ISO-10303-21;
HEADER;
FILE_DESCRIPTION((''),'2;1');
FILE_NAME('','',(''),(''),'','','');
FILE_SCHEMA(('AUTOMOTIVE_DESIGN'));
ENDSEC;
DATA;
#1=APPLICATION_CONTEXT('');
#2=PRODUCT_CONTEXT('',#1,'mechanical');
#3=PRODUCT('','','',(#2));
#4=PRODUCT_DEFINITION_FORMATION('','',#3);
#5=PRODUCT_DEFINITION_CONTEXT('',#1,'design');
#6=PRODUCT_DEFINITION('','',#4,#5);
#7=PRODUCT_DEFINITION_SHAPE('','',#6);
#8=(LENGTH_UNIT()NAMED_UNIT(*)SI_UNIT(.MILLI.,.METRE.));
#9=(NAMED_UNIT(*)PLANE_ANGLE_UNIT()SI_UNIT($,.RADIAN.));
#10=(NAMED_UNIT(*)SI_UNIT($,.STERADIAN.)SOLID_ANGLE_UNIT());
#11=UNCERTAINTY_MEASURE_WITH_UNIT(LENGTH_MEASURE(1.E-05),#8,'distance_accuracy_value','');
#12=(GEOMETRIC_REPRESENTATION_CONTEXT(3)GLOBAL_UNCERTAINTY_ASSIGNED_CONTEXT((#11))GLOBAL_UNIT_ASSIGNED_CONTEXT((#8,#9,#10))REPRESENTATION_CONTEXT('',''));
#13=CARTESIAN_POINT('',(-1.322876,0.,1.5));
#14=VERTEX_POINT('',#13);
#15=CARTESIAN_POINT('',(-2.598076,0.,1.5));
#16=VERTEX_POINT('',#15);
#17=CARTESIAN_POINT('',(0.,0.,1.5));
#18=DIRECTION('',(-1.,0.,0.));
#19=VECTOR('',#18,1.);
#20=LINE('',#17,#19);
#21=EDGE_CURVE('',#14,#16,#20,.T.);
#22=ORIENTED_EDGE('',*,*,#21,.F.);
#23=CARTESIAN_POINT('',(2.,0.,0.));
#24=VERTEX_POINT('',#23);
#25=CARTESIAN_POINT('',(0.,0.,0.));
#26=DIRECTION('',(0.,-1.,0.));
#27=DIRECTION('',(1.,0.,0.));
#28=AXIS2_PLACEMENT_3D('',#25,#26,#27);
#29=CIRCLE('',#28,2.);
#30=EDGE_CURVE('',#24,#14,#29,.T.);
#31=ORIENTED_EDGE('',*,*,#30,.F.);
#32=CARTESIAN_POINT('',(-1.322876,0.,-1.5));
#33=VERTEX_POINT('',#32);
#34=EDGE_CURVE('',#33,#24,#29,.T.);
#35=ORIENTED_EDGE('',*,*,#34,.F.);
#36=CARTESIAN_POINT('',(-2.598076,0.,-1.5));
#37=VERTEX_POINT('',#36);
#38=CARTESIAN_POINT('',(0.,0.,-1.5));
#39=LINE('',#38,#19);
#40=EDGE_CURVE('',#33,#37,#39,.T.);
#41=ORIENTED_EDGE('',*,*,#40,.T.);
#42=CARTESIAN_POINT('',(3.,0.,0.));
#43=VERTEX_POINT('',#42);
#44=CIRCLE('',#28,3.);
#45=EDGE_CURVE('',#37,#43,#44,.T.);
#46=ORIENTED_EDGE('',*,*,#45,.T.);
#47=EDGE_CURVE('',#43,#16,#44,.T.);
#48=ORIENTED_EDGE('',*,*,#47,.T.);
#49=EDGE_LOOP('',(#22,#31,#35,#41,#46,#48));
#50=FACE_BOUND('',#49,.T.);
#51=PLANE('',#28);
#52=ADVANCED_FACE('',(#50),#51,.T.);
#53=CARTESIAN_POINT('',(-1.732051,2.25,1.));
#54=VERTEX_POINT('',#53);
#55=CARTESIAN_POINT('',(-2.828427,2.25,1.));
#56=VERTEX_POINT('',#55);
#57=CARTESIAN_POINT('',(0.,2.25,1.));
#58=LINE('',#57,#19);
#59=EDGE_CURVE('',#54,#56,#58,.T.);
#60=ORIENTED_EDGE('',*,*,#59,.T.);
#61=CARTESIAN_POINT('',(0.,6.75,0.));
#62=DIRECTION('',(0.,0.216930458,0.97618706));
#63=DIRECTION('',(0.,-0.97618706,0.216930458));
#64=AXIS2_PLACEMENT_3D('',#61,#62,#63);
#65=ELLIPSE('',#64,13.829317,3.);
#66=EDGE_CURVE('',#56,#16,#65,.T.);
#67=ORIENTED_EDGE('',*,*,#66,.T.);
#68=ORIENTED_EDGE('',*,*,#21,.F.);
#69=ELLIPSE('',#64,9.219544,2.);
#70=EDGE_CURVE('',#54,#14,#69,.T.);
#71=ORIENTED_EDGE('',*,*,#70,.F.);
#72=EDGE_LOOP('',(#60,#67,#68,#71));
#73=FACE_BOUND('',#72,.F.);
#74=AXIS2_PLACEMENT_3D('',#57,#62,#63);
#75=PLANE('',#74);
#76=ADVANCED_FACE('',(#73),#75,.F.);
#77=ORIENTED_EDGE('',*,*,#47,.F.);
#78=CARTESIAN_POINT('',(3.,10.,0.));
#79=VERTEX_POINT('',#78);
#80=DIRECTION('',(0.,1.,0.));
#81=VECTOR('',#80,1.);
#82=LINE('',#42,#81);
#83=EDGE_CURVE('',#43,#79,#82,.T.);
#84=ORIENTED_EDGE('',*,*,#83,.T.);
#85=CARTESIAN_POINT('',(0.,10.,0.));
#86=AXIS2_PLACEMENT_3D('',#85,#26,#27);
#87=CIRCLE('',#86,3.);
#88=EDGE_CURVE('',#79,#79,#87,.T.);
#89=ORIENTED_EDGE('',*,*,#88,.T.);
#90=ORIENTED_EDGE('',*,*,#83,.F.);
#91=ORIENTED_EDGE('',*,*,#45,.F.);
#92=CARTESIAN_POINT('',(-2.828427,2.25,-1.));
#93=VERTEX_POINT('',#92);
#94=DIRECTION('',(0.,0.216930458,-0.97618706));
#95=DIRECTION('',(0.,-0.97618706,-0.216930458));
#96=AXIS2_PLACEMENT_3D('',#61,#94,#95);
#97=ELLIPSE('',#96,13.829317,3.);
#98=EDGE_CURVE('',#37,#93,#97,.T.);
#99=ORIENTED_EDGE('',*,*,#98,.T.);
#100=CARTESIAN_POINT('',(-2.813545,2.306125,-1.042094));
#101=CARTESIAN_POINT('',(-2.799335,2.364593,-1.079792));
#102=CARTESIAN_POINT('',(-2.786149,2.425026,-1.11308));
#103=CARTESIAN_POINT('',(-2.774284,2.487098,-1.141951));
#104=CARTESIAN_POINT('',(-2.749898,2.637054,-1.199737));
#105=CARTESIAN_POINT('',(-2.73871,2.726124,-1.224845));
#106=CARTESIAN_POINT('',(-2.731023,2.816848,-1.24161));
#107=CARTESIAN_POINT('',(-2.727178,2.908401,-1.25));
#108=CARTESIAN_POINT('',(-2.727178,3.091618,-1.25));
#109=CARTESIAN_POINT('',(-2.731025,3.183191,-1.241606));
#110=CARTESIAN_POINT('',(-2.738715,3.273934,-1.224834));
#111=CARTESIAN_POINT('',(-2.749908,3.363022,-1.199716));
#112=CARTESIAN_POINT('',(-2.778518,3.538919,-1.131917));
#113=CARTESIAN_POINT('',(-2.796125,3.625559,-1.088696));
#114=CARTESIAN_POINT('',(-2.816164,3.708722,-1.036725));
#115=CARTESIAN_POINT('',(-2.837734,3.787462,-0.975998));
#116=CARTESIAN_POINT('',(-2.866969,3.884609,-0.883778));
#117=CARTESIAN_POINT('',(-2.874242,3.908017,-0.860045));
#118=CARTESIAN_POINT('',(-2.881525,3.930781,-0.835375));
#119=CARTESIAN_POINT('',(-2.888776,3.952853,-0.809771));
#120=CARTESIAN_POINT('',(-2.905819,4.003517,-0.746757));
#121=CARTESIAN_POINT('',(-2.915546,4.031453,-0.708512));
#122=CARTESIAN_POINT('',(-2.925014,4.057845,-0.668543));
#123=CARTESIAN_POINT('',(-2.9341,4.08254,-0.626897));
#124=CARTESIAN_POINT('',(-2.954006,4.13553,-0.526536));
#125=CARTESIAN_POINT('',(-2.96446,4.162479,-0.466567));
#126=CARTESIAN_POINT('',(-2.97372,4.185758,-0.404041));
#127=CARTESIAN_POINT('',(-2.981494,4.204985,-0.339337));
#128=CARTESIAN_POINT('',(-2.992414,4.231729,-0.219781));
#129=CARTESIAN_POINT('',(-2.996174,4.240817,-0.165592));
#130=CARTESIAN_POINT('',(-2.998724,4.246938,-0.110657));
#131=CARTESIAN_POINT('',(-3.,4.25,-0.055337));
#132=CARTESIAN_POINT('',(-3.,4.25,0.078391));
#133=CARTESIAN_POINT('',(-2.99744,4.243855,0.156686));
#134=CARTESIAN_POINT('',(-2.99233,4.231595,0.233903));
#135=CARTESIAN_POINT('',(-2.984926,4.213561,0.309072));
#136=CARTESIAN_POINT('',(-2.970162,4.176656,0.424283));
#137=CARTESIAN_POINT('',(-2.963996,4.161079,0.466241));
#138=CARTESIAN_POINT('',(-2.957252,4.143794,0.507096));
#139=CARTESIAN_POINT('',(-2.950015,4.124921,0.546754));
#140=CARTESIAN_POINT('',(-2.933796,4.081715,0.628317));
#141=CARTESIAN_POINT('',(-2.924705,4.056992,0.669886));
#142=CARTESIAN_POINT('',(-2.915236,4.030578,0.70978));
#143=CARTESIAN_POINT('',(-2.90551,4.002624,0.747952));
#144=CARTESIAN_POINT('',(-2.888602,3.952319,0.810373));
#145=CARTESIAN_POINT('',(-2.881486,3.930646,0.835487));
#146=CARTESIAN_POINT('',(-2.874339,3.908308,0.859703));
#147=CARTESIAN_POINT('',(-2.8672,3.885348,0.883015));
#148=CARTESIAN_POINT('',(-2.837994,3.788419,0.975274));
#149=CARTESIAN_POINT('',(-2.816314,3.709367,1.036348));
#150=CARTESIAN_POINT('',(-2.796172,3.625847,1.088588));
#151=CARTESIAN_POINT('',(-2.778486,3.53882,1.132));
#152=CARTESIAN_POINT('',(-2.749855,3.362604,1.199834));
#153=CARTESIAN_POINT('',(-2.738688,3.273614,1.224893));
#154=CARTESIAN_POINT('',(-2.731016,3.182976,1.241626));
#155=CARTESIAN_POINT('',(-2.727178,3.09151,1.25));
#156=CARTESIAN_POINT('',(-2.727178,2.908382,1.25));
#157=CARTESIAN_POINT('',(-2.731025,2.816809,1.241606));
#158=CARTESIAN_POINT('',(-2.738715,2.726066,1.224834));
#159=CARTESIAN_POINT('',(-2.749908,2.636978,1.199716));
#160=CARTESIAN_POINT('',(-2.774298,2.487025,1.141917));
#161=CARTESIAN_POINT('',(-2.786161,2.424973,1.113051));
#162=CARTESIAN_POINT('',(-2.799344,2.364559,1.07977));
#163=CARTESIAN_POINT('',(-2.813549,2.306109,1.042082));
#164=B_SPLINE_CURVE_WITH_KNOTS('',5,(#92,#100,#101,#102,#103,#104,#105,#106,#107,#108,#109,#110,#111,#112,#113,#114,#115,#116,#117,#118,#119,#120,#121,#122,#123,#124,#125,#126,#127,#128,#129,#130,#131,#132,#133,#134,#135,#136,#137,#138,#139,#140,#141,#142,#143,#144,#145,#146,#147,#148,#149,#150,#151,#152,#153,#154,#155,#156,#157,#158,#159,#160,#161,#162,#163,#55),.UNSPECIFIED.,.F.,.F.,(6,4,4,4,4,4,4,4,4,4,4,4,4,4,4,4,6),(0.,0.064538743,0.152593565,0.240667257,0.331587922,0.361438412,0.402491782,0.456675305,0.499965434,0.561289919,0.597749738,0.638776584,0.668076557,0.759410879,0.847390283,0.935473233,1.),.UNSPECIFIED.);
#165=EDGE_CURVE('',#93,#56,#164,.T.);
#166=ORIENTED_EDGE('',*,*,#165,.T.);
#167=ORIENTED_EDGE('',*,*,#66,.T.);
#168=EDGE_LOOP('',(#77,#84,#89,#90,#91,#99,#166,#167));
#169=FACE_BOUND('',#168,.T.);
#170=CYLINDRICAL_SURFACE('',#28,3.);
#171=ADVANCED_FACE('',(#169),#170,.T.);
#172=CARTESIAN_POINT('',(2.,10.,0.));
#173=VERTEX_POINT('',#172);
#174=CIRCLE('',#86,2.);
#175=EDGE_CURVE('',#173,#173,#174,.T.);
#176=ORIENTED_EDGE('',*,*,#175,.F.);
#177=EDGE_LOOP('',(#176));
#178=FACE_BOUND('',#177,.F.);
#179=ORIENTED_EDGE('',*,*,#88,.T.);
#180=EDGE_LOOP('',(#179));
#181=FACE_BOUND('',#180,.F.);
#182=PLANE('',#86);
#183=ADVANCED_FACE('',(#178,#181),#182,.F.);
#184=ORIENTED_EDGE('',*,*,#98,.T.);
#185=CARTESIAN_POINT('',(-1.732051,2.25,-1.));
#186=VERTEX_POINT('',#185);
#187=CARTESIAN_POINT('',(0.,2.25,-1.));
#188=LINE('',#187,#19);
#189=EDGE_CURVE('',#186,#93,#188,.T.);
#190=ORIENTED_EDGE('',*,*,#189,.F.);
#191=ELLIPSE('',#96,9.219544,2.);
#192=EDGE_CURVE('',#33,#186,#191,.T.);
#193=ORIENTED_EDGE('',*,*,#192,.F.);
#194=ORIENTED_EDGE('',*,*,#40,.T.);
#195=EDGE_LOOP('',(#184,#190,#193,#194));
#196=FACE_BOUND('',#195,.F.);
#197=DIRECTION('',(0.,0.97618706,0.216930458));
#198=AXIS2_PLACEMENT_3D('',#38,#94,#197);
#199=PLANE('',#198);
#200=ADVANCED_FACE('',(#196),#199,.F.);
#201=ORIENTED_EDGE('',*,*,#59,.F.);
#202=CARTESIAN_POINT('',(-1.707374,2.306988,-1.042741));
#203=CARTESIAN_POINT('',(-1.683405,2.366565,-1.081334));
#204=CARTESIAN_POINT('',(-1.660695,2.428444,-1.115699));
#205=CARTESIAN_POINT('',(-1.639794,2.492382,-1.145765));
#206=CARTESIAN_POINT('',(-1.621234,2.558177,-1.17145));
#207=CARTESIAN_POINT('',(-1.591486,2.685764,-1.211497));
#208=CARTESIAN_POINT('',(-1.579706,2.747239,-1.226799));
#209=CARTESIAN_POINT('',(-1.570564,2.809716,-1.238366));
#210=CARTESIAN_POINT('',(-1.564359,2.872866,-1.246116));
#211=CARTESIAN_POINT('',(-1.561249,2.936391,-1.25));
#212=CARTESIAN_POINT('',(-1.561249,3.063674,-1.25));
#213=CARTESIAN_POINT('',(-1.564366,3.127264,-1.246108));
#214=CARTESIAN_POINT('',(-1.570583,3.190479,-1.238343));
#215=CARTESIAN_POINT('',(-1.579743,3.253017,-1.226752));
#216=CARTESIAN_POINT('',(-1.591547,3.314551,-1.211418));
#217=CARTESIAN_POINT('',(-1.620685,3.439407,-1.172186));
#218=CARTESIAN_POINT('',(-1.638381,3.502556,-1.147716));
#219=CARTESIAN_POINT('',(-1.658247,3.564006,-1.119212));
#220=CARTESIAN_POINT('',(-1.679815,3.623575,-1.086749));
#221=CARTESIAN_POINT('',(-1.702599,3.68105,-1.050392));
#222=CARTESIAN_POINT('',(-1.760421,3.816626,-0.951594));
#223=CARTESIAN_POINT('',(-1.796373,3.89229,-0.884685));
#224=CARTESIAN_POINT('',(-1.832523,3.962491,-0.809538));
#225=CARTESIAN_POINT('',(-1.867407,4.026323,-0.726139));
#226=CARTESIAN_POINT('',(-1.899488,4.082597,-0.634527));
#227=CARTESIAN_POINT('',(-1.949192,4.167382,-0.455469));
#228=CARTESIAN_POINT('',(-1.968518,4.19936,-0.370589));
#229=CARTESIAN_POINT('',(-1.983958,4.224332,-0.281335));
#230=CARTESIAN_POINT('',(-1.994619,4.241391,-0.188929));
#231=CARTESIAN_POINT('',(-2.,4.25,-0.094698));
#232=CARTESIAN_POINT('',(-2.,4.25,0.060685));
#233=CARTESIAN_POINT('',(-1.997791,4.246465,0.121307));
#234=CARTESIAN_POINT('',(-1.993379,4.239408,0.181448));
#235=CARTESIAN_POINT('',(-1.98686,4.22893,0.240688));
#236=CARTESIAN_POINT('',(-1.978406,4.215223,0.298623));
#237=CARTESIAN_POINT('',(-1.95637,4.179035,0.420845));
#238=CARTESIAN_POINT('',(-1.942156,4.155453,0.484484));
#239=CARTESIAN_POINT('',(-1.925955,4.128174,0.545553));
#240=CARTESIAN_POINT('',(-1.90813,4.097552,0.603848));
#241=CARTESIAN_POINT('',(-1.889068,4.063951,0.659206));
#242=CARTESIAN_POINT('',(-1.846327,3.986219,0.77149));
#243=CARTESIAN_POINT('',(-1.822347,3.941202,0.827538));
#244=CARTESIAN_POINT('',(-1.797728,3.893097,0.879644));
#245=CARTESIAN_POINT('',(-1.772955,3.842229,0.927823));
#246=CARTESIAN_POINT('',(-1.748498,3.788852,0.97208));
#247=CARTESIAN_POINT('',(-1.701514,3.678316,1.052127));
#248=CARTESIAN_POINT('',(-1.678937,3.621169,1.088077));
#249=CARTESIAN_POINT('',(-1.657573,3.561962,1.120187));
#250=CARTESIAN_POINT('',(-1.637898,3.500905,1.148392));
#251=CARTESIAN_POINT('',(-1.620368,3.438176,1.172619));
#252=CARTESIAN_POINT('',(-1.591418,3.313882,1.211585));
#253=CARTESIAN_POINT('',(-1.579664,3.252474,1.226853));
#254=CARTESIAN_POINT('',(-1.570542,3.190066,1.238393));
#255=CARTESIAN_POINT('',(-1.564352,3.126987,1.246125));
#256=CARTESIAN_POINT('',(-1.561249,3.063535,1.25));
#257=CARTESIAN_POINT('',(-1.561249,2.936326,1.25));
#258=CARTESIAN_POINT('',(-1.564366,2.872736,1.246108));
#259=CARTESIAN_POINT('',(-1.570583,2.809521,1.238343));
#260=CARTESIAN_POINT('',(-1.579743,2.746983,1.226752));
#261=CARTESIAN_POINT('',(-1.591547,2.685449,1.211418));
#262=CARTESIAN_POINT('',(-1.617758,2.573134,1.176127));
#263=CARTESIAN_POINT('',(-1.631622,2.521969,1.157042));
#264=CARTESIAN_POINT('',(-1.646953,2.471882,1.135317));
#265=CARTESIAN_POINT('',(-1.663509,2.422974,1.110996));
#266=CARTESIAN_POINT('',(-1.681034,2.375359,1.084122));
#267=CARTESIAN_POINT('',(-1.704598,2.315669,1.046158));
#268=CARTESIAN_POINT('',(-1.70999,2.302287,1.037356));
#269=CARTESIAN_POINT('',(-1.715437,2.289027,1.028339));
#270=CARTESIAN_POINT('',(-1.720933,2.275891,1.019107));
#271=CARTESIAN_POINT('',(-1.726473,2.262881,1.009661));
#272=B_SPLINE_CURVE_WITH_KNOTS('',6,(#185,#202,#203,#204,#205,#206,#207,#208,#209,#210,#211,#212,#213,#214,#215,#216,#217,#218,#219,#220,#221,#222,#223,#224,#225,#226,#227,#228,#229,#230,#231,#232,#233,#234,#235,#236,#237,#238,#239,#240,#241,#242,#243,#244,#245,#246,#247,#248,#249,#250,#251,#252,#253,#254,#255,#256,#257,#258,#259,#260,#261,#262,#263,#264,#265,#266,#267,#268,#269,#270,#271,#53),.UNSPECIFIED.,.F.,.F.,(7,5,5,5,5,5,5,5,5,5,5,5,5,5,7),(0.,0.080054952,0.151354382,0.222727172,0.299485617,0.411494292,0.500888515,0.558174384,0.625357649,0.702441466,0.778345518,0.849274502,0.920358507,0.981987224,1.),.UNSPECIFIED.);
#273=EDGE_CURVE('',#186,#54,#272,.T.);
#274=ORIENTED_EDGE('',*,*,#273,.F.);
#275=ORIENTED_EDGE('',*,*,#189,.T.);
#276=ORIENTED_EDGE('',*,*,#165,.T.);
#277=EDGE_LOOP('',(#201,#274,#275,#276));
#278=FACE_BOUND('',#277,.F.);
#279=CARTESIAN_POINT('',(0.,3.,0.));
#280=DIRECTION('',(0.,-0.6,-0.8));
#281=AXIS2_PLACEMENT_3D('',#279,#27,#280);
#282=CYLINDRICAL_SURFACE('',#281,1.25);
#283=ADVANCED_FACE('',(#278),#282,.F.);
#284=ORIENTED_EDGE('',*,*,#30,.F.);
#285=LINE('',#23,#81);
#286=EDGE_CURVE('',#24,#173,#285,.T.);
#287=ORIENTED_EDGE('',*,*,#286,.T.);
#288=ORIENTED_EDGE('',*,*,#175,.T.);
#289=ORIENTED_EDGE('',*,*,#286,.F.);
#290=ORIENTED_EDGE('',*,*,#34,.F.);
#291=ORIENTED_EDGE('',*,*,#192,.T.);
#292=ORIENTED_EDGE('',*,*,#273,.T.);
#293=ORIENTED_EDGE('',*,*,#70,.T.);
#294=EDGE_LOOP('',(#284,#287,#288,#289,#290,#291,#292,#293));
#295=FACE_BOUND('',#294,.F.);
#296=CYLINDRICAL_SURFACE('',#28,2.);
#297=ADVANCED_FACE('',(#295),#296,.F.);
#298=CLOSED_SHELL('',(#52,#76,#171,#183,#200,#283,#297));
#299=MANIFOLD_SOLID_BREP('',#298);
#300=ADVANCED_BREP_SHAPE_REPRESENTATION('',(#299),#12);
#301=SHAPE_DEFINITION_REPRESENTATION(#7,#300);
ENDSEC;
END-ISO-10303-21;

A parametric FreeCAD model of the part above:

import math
import FreeCAD as App
import Part
import Sketcher

V = App.Vector
Q = App.Units.Quantity

doc = App.newDocument("Part")
body = doc.addObject("PartDesign::Body", "Body")

# Sketch on XZ plane
sketch1 = doc.addObject("Sketcher::SketchObject", "Sketch")
body.addObject(sketch1)
sketch1.AttachmentSupport = (doc.XZ_Plane, [""])
sketch1.MapMode = "FlatFace"
sketch1.addGeometry(Part.Circle(V(0, 0, 0), V(0, 0, 1), 3), False)
sketch1.addConstraint(Sketcher.Constraint("Coincident", 0, 3, -1, 1))
sketch1.addConstraint(Sketcher.Constraint("Diameter", 0, Q("6 mm")))
pad1 = doc.addObject("PartDesign::Pad", "Pad")
body.addObject(pad1)
pad1.Profile = sketch1
pad1.Length = 10
pad1.Reversed = True

# Sketch on YZ plane
sketch2 = doc.addObject("Sketcher::SketchObject", "Sketch001")
body.addObject(sketch2)
sketch2.AttachmentSupport = (doc.YZ_Plane, [""])
sketch2.MapMode = "FlatFace"
sketch2.addGeometry(Part.LineSegment(V(0, 1.5, 0), V(0, -1.5, 0)), False)
sketch2.addGeometry(Part.LineSegment(V(0, -1.5, 0), V(2.2, -1, 0)), False)
sketch2.addGeometry(Part.ArcOfCircle(Part.Circle(V(3, 0, 0), V(0, 0, 1), 1.2), math.radians(-127), math.radians(127)), False)
sketch2.addGeometry(Part.LineSegment(V(2.2, 1, 0), V(0, 1.5, 0)), False)
sketch2.addConstraint(Sketcher.Constraint("Coincident", 0, 2, 1, 1))
sketch2.addConstraint(Sketcher.Constraint("Coincident", 1, 2, 2, 1))
sketch2.addConstraint(Sketcher.Constraint("Coincident", 2, 2, 3, 1))
sketch2.addConstraint(Sketcher.Constraint("Coincident", 3, 2, 0, 1))
sketch2.addConstraint(Sketcher.Constraint("Vertical", 0))
sketch2.addConstraint(Sketcher.Constraint("Symmetric", 0, 2, 3, 2, -1, 1))
sketch2.addConstraint(Sketcher.Constraint("Symmetric", 1, 2, 2, 2, -1))
sketch2.addConstraint(Sketcher.Constraint("DistanceY", 0, 2, 0, 1, Q("3 mm")))
sketch2.addConstraint(Sketcher.Constraint("Radius", 2, Q("1.25 mm")))
sketch2.addConstraint(Sketcher.Constraint("DistanceX", -1, 1, 2, 3, Q("3 mm")))
sketch2.addConstraint(Sketcher.Constraint("DistanceY", 1, 2, -1, 1, Q("1 mm")))
pocket1 = doc.addObject("PartDesign::Pocket", "Pocket")
body.addObject(pocket1)
pocket1.Profile = sketch2
pocket1.Length = 25

# Sketch on XZ plane
sketch3 = doc.addObject("Sketcher::SketchObject", "Sketch002")
body.addObject(sketch3)
sketch3.AttachmentSupport = (doc.XZ_Plane, [""])
sketch3.MapMode = "FlatFace"
sketch3.addGeometry(Part.Circle(V(0, 0, 0), V(0, 0, 1), 2), False)
sketch3.addConstraint(Sketcher.Constraint("Coincident", 0, 3, -1, 1))
sketch3.addConstraint(Sketcher.Constraint("Diameter", 0, Q("4 mm")))
pocket2 = doc.addObject("PartDesign::Pocket", "Pocket001")
body.addObject(pocket2)
pocket2.Profile = sketch3
pocket2.Length = 25

doc.recompute()
